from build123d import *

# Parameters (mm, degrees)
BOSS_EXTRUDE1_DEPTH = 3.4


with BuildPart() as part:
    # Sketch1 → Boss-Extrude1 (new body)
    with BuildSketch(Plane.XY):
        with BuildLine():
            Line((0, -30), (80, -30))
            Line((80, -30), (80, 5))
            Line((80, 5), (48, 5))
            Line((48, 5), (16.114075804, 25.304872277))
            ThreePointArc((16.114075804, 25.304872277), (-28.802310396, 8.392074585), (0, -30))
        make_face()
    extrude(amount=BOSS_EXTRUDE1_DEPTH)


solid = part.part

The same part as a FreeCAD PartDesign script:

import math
import FreeCAD as App
import Part
import Sketcher
Q = App.Units.Quantity

doc = App.newDocument("Part")
body = doc.addObject("PartDesign::Body", "Body")

# Sketch on XY plane
sketch1 = doc.addObject("Sketcher::SketchObject", "Sketch")
body.addObject(sketch1)
sketch1.AttachmentSupport = (doc.XY_Plane, [""])
sketch1.MapMode = "FlatFace"
sketch1.addGeometry(Part.LineSegment(App.Vector(0, -30, 0), App.Vector(80, -30, 0)), False)
sketch1.addGeometry(Part.LineSegment(App.Vector(80, -30, 0), App.Vector(80, 5, 0)), False)
sketch1.addGeometry(Part.LineSegment(App.Vector(80, 5, 0), App.Vector(48, 5, 0)), False)
sketch1.addGeometry(Part.LineSegment(App.Vector(48, 5, 0), App.Vector(16, 25, 0)), False)
sketch1.addGeometry(Part.ArcOfCircle(Part.Circle(App.Vector(0, 0, 0), App.Vector(0, 0, 1), 30), math.radians(58), math.radians(270)), False)
sketch1.addConstraint(Sketcher.Constraint("Coincident", 0, 2, 1, 1))
sketch1.addConstraint(Sketcher.Constraint("Coincident", 1, 2, 2, 1))
sketch1.addConstraint(Sketcher.Constraint("Coincident", 2, 2, 3, 1))
sketch1.addConstraint(Sketcher.Constraint("Tangent", 3, 2, 4, 1))
sketch1.addConstraint(Sketcher.Constraint("Tangent", 4, 2, 0, 1))
sketch1.addConstraint(Sketcher.Constraint("Horizontal", 0))
sketch1.addConstraint(Sketcher.Constraint("Vertical", 1))
sketch1.addConstraint(Sketcher.Constraint("Horizontal", 2))
sketch1.addConstraint(Sketcher.Constraint("Coincident", 4, 3, -1, 1))
sketch1.addConstraint(Sketcher.Constraint("Radius", 4, Q("30 mm")))
sketch1.addConstraint(Sketcher.Constraint("DistanceX", 0, 1, 0, 2, Q("80 mm")))
sketch1.addConstraint(Sketcher.Constraint("DistanceX", 2, 2, 2, 1, Q("32 mm")))
sketch1.addConstraint(Sketcher.Constraint("DistanceY", 1, 1, 1, 2, Q("35 mm")))
pad1 = doc.addObject("PartDesign::Pad", "Pad")
body.addObject(pad1)
pad1.Profile = sketch1
pad1.Length = 3.4

doc.recompute()
